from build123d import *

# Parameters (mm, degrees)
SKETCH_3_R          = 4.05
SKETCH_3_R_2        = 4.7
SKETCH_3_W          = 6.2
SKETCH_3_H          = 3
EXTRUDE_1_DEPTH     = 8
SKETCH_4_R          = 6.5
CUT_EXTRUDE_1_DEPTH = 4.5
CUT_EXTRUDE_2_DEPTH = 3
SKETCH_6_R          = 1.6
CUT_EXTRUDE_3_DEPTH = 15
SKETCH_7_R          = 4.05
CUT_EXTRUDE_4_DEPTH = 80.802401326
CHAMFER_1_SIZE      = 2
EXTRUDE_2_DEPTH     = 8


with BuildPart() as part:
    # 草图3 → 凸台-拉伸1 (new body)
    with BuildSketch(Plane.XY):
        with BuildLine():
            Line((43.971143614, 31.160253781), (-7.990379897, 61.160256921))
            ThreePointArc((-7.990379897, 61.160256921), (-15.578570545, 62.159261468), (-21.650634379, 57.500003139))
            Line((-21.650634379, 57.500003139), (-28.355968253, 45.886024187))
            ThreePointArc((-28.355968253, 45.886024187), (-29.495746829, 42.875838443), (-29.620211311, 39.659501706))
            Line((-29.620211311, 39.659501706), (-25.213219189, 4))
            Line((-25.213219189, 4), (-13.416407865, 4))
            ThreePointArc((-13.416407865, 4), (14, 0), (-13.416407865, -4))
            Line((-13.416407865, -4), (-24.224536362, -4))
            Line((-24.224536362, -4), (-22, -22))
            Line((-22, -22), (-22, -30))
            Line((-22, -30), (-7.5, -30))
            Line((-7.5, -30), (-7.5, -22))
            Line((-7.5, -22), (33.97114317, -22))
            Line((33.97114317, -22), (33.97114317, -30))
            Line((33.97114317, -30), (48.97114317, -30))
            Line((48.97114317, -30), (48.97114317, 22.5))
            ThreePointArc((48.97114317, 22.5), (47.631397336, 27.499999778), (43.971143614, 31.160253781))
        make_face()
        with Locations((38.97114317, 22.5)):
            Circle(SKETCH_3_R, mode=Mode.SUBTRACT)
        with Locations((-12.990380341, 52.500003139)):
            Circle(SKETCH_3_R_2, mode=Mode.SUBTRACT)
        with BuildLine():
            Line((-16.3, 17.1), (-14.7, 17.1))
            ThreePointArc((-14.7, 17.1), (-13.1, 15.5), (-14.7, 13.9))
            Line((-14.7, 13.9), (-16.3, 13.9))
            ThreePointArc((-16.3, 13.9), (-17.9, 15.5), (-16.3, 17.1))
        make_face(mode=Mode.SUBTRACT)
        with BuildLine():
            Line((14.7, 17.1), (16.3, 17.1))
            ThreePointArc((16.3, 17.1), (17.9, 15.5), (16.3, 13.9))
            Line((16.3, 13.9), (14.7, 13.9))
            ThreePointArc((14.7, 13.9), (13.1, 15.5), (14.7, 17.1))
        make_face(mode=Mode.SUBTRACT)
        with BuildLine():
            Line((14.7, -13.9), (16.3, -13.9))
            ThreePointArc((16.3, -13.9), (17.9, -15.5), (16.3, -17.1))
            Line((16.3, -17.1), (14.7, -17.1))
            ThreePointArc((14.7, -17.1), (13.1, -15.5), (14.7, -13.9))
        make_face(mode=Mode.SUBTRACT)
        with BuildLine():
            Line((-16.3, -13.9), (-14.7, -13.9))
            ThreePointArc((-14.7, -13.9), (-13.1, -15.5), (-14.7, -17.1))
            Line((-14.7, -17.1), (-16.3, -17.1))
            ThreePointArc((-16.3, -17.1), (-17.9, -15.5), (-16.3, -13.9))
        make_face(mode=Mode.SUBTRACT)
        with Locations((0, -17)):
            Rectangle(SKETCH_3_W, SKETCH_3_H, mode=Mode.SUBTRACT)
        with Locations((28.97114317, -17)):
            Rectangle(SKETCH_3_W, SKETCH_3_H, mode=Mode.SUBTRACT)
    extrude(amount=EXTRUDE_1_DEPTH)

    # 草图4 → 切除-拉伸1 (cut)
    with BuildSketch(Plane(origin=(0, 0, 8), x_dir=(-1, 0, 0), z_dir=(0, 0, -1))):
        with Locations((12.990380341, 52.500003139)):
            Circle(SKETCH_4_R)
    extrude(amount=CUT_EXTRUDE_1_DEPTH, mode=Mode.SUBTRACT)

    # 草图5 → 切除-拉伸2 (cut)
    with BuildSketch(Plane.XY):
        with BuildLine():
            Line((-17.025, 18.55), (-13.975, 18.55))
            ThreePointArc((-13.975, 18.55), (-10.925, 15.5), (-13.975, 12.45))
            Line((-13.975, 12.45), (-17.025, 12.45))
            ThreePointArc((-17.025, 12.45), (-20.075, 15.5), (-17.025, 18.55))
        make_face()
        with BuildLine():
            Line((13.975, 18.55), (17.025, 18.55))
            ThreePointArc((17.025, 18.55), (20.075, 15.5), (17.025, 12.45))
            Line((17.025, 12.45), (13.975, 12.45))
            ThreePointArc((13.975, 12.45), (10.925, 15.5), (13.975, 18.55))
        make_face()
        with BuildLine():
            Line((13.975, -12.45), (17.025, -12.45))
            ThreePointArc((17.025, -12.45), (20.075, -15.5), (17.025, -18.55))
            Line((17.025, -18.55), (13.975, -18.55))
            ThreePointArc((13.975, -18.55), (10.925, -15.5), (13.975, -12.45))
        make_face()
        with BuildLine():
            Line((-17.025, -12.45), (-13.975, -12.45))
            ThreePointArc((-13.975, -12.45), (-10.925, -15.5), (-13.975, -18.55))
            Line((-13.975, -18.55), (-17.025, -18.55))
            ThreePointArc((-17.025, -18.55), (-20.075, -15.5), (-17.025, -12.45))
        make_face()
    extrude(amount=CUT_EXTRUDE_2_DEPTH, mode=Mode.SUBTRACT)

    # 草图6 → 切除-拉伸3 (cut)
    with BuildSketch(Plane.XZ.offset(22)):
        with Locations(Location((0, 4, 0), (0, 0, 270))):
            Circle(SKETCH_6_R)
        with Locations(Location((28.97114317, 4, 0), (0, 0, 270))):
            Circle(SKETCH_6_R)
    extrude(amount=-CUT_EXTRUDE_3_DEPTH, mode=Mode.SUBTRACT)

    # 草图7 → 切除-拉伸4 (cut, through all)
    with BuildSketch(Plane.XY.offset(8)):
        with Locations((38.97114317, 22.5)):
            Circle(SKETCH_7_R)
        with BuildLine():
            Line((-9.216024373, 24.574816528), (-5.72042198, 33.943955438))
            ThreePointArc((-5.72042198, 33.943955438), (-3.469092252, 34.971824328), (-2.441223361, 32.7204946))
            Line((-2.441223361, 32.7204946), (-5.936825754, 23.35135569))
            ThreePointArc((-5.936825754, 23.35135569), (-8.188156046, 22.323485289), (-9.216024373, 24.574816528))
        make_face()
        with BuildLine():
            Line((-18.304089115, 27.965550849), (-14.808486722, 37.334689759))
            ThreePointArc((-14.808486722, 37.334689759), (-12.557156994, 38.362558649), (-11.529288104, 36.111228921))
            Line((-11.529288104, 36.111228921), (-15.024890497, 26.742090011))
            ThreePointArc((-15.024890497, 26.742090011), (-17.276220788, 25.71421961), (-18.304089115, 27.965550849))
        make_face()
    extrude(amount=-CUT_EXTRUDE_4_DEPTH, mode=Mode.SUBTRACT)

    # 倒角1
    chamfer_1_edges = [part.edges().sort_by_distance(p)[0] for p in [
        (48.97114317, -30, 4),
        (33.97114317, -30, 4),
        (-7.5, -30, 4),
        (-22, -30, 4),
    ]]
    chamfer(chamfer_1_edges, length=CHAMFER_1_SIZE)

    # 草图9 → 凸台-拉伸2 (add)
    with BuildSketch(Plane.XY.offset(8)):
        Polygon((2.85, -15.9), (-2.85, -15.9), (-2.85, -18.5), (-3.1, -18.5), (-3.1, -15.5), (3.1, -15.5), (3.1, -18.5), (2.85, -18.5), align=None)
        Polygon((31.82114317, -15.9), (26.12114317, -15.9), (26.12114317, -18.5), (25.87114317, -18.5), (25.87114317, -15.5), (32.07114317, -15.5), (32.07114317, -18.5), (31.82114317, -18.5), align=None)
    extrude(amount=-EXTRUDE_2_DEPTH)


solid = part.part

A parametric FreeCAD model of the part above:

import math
import FreeCAD as App
import Part
import Sketcher
from FreeCAD import Vector
Q = App.Units.Quantity


def edges_at(feature, points):
    """Names of the edges that pass closest to the given points."""
    edges = feature.Shape.Edges
    near = lambda p: min(range(len(edges)), key=lambda i: edges[i].distToShape(Part.Vertex(*p))[0])
    return sorted({f"Edge{near(p) + 1}" for p in points})


def add_polygon(sketch, points):
    """Adds a closed chain of lines whose ends are joined by coincident constraints."""
    first, n = sketch.GeometryCount, len(points)
    for a, b in zip(points, points[1:] + points[:1]):
        sketch.addGeometry(Part.LineSegment(App.Vector(*a, 0), App.Vector(*b, 0)), False)
    for i in range(n):
        sketch.addConstraint(Sketcher.Constraint("Coincident", first + i, 2, first + (i + 1) % n, 1))

doc = App.newDocument("Part")
body = doc.addObject("PartDesign::Body", "Body")

# Sketch on XY plane
sketch1 = body.newObject("Sketcher::SketchObject", "Sketch")
sketch1.AttachmentSupport = (doc.getObject("XY_Plane"), [""])
sketch1.MapMode = "FlatFace"
sketch1.addGeometry(Part.LineSegment(Vector(44, 31.2, 0), Vector(-8, 61.2, 0)), False)  # 0
sketch1.addGeometry(Part.ArcOfCircle(Part.Circle(Vector(-13, 52.5, 0), Vector(0, 0, 1), 10), math.radians(60), math.radians(150)), False)  # 1
sketch1.addGeometry(Part.LineSegment(Vector(-21.7, 57.5, 0), Vector(-28.4, 45.9, 0)), False)  # 2
sketch1.addGeometry(Part.ArcOfCircle(Part.Circle(Vector(-19.7, 40.9, 0), Vector(0, 0, 1), 10), math.radians(150), math.radians(187)), False)  # 3
sketch1.addGeometry(Part.LineSegment(Vector(-29.6, 39.7, 0), Vector(-25.2, 4, 0)), False)  # 4
sketch1.addGeometry(Part.LineSegment(Vector(-25.2, 4, 0), Vector(-13.4, 4, 0)), False)  # 5
sketch1.addGeometry(Part.ArcOfCircle(Part.Circle(Vector(0, 0, 0), Vector(0, 0, 1), 14), math.radians(-163), math.radians(163)), False)  # 6
sketch1.addGeometry(Part.LineSegment(Vector(-13.4, -4, 0), Vector(-24.2, -4, 0)), False)  # 7
sketch1.addGeometry(Part.LineSegment(Vector(-24.2, -4, 0), Vector(-22, -22, 0)), False)  # 8
sketch1.addGeometry(Part.LineSegment(Vector(-22, -22, 0), Vector(-22, -30, 0)), False)  # 9
sketch1.addGeometry(Part.LineSegment(Vector(-22, -30, 0), Vector(-7.5, -30, 0)), False)  # 10
sketch1.addGeometry(Part.LineSegment(Vector(-7.5, -30, 0), Vector(-7.5, -22, 0)), False)  # 11
sketch1.addGeometry(Part.LineSegment(Vector(-7.5, -22, 0), Vector(34, -22, 0)), False)  # 12
sketch1.addGeometry(Part.LineSegment(Vector(34, -22, 0), Vector(34, -30, 0)), False)  # 13
sketch1.addGeometry(Part.LineSegment(Vector(34, -30, 0), Vector(49, -30, 0)), False)  # 14
sketch1.addGeometry(Part.LineSegment(Vector(49, -30, 0), Vector(49, 22.5, 0)), False)  # 15
sketch1.addGeometry(Part.ArcOfCircle(Part.Circle(Vector(39, 22.5, 0), Vector(0, 0, 1), 10), math.radians(0), math.radians(60)), False)  # 16
sketch1.addGeometry(Part.ArcOfCircle(Part.Circle(Vector(-16.3, -15.5, 0), Vector(0, 0, 1), 1.6), math.radians(90), math.radians(270)), False)  # 17
sketch1.addGeometry(Part.LineSegment(Vector(-16.3, -13.9, 0), Vector(-14.7, -13.9, 0)), False)  # 18
sketch1.addGeometry(Part.ArcOfCircle(Part.Circle(Vector(-14.7, -15.5, 0), Vector(0, 0, 1), 1.6), math.radians(-90), math.radians(90)), False)  # 19
sketch1.addGeometry(Part.LineSegment(Vector(-14.7, -17.1, 0), Vector(-16.3, -17.1, 0)), False)  # 20
add_polygon(sketch1, [(3.1, -18.5), (-3.1, -18.5), (-3.1, -15.5), (3.1, -15.5)])  # lines 21-24
sketch1.addGeometry(Part.ArcOfCircle(Part.Circle(Vector(-16.3, 15.5, 0), Vector(0, 0, 1), 1.6), math.radians(90), math.radians(270)), False)  # 25
sketch1.addGeometry(Part.LineSegment(Vector(-16.3, 17.1, 0), Vector(-14.7, 17.1, 0)), False)  # 26
sketch1.addGeometry(Part.ArcOfCircle(Part.Circle(Vector(-14.7, 15.5, 0), Vector(0, 0, 1), 1.6), math.radians(-90), math.radians(90)), False)  # 27
sketch1.addGeometry(Part.LineSegment(Vector(-14.7, 13.9, 0), Vector(-16.3, 13.9, 0)), False)  # 28
sketch1.addGeometry(Part.ArcOfCircle(Part.Circle(Vector(14.7, -15.5, 0), Vector(0, 0, 1), 1.6), math.radians(90), math.radians(270)), False)  # 29
sketch1.addGeometry(Part.LineSegment(Vector(14.7, -13.9, 0), Vector(16.3, -13.9, 0)), False)  # 30
sketch1.addGeometry(Part.ArcOfCircle(Part.Circle(Vector(16.3, -15.5, 0), Vector(0, 0, 1), 1.6), math.radians(-90), math.radians(90)), False)  # 31
sketch1.addGeometry(Part.LineSegment(Vector(16.3, -17.1, 0), Vector(14.7, -17.1, 0)), False)  # 32
add_polygon(sketch1, [(32.1, -18.5), (25.9, -18.5), (25.9, -15.5), (32.1, -15.5)])  # lines 33-36
sketch1.addGeometry(Part.ArcOfCircle(Part.Circle(Vector(14.7, 15.5, 0), Vector(0, 0, 1), 1.6), math.radians(90), math.radians(270)), False)  # 37
sketch1.addGeometry(Part.LineSegment(Vector(14.7, 17.1, 0), Vector(16.3, 17.1, 0)), False)  # 38
sketch1.addGeometry(Part.ArcOfCircle(Part.Circle(Vector(16.3, 15.5, 0), Vector(0, 0, 1), 1.6), math.radians(-90), math.radians(90)), False)  # 39
sketch1.addGeometry(Part.LineSegment(Vector(16.3, 13.9, 0), Vector(14.7, 13.9, 0)), False)  # 40
sketch1.addGeometry(Part.Circle(Vector(-13, 52.5, 0), Vector(0, 0, 1), 4.7), False)  # 41
sketch1.addGeometry(Part.Circle(Vector(39, 22.5, 0), Vector(0, 0, 1), 4), False)  # 42
sketch1.addConstraint([
    Sketcher.Constraint("Tangent", 0, 2, 1, 1),
    Sketcher.Constraint("Tangent", 1, 2, 2, 1),
    Sketcher.Constraint("Tangent", 2, 2, 3, 1),
    Sketcher.Constraint("Tangent", 3, 2, 4, 1),
    Sketcher.Constraint("Coincident", 4, 2, 5, 1),
    Sketcher.Constraint("Coincident", 5, 2, 6, 2),
    Sketcher.Constraint("Coincident", 6, 1, 7, 1),
    Sketcher.Constraint("Coincident", 7, 2, 8, 1),
    Sketcher.Constraint("Coincident", 8, 2, 9, 1),
    Sketcher.Constraint("Coincident", 9, 2, 10, 1),
    Sketcher.Constraint("Coincident", 10, 2, 11, 1),
    Sketcher.Constraint("Coincident", 11, 2, 12, 1),
    Sketcher.Constraint("Coincident", 12, 2, 13, 1),
    Sketcher.Constraint("Coincident", 13, 2, 14, 1),
    Sketcher.Constraint("Coincident", 14, 2, 15, 1),
    Sketcher.Constraint("Tangent", 15, 2, 16, 1),
    Sketcher.Constraint("Tangent", 16, 2, 0, 1),
    Sketcher.Constraint("Tangent", 17, 1, 18, 1),
    Sketcher.Constraint("Tangent", 18, 2, 19, 2),
    Sketcher.Constraint("Tangent", 19, 1, 20, 1),
    Sketcher.Constraint("Tangent", 20, 2, 17, 2),
    Sketcher.Constraint("Tangent", 25, 1, 26, 1),
    Sketcher.Constraint("Tangent", 26, 2, 27, 2),
    Sketcher.Constraint("Tangent", 27, 1, 28, 1),
    Sketcher.Constraint("Tangent", 28, 2, 25, 2),
    Sketcher.Constraint("Tangent", 29, 1, 30, 1),
    Sketcher.Constraint("Tangent", 30, 2, 31, 2),
    Sketcher.Constraint("Tangent", 31, 1, 32, 1),
    Sketcher.Constraint("Tangent", 32, 2, 29, 2),
    Sketcher.Constraint("Tangent", 37, 1, 38, 1),
    Sketcher.Constraint("Tangent", 38, 2, 39, 2),
    Sketcher.Constraint("Tangent", 39, 1, 40, 1),
    Sketcher.Constraint("Tangent", 40, 2, 37, 2),
    Sketcher.Constraint("Horizontal", 5),
    Sketcher.Constraint("Horizontal", 7),
    Sketcher.Constraint("Vertical", 9),
    Sketcher.Constraint("Horizontal", 10),
    Sketcher.Constraint("Vertical", 11),
    Sketcher.Constraint("Horizontal", 12),
    Sketcher.Constraint("Vertical", 13),
    Sketcher.Constraint("Horizontal", 14),
    Sketcher.Constraint("Vertical", 15),
    Sketcher.Constraint("Horizontal", 18),
    Sketcher.Constraint("Horizontal", 20),
    Sketcher.Constraint("Horizontal", 21),
    Sketcher.Constraint("Vertical", 22),
    Sketcher.Constraint("Horizontal", 23),
    Sketcher.Constraint("Vertical", 24),
    Sketcher.Constraint("Horizontal", 26),
    Sketcher.Constraint("Horizontal", 28),
    Sketcher.Constraint("Horizontal", 30),
    Sketcher.Constraint("Horizontal", 32),
    Sketcher.Constraint("Horizontal", 33),
    Sketcher.Constraint("Vertical", 34),
    Sketcher.Constraint("Horizontal", 35),
    Sketcher.Constraint("Vertical", 36),
    Sketcher.Constraint("Horizontal", 38),
    Sketcher.Constraint("Horizontal", 40),
    Sketcher.Constraint("Coincident", 6, 3, -1, 1),
    Sketcher.Constraint("Coincident", 41, 3, 1, 3),
    Sketcher.Constraint("Coincident", 42, 3, 16, 3),
    Sketcher.Constraint("Equal", 1, 3),
    Sketcher.Constraint("Equal", 3, 16),
    Sketcher.Constraint("Equal", 19, 25),
    Sketcher.Constraint("Equal", 27, 29),
    Sketcher.Constraint("Equal", 31, 37),
    Sketcher.Constraint("Symmetric", 27, 3, 29, 3, -1, 1),
    Sketcher.Constraint("Symmetric", 19, 3, 37, 3, -1, 1),
    Sketcher.Constraint("Symmetric", 19, 3, 29, 3, -2),
    Sketcher.Constraint("Perpendicular", 0, 2),
    Sketcher.Constraint("Parallel", 4, 8),
    Sketcher.Constraint("Horizontal", 8, 2, 11, 2),
    Sketcher.Constraint("Horizontal", 10, 2, 13, 2),
    Sketcher.Constraint("Horizontal", 31, 3, 22, 2),
    Sketcher.Constraint("Horizontal", 24, 2, 33, 2),
    Sketcher.Constraint("Horizontal", 23, 2, 34, 2),
    Sketcher.Constraint("Vertical", 17, 3, 25, 3),
    Sketcher.Constraint("Vertical", 31, 3, 39, 3),
    Sketcher.Constraint("Vertical", 5, 2, 6, 1),
    Sketcher.Constraint("Equal", 28, 30),
    Sketcher.Constraint("Equal", 23, 33),
    Sketcher.Constraint("Radius", 1, 10.0),
    Sketcher.Constraint("Radius", 6, 14.0),
    Sketcher.Constraint("Diameter", 41, 9.4),
    Sketcher.Constraint("Diameter", 42, 8.1),
    Sketcher.Constraint("Radius", 17, 1.6),
    Sketcher.Constraint("DistanceX", 14, 1, 14, 2, 15.0),
    Sketcher.Constraint("DistanceY", 9, 2, 9, 1, 8.0),
    Sketcher.Constraint("DistanceY", 22, 1, 22, 2, 3.0),
    Sketcher.Constraint("Angle", 0, Q("149.999997 deg")),
    Sketcher.Constraint("Distance", 0, 60.000001),
    Sketcher.Constraint("DistanceX", 10, 1, 10, 2, 14.5),
    Sketcher.Constraint("DistanceX", 18, 1, 18, 2, 1.6),
    Sketcher.Constraint("DistanceX", 21, 2, 21, 1, 6.2),
    Sketcher.Constraint("DistanceY", 15, 1, 15, 2, 52.5),
    Sketcher.Constraint("DistanceY", -1, 1, 4, 2, 4.0),
    Sketcher.Constraint("DistanceX", 8, 2, -1, 1, 22.0),
    Sketcher.Constraint("DistanceY", 8, 2, -1, 1, 22.0),
    Sketcher.Constraint("DistanceY", 17, 3, 16, 3, 38.0),
    Sketcher.Constraint("DistanceX", 17, 3, 29, 3, 31.0),
    Sketcher.Constraint("DistanceX", 21, 2, -1, 1, 3.1),
    Sketcher.Constraint("DistanceX", 33, 2, 12, 2, 8.1),
    Sketcher.Constraint("DistanceX", 5, 1, 5, 2, 11.796811),
    Sketcher.Constraint("DistanceX", 7, 2, 7, 1, 10.808128),
    Sketcher.Constraint("DistanceY", -1, 1, 3, 2, 39.659502),
])
pad1 = body.newObject("PartDesign::Pad", "Pad")
pad1.Profile = sketch1
pad1.Length = 8

# Sketch on XY plane
sketch2 = body.newObject("Sketcher::SketchObject", "Sketch001")
sketch2.AttachmentSupport = (doc.getObject("XY_Plane"), [""])
sketch2.MapMode = "FlatFace"
sketch2.AttachmentOffset = App.Placement(Vector(0, 0, 8), App.Rotation())
sketch2.addGeometry(Part.Circle(Vector(-13, 53, 0), Vector(0, 0, 1), 6), False)
sketch2.addConstraint([
    Sketcher.Constraint("Diameter", 0, 13.0),
    Sketcher.Constraint("DistanceX", 0, 3, -1, 1, 12.99038),
    Sketcher.Constraint("DistanceY", -1, 1, 0, 3, 52.500003),
])
pocket1 = body.newObject("PartDesign::Pocket", "Pocket")
pocket1.Profile = sketch2
pocket1.Length = 4.5

# Sketch on XY plane
sketch3 = body.newObject("Sketcher::SketchObject", "Sketch002")
sketch3.AttachmentSupport = (doc.getObject("XY_Plane"), [""])
sketch3.MapMode = "FlatFace"
sketch3.addGeometry([
    Part.LineSegment(Vector(-14, 18.6, 0), Vector(-17, 18.6, 0)),  # 0
    Part.ArcOfCircle(Part.Circle(Vector(-17, 15.5, 0), Vector(0, 0, 1), 3), math.radians(90), math.radians(270)),  # 1
    Part.LineSegment(Vector(-17, 12.4, 0), Vector(-14, 12.4, 0)),  # 2
    Part.ArcOfCircle(Part.Circle(Vector(-14, 15.5, 0), Vector(0, 0, 1), 3), math.radians(-90), math.radians(90)),  # 3
    Part.LineSegment(Vector(17, 18.6, 0), Vector(14, 18.6, 0)),  # 4
    Part.ArcOfCircle(Part.Circle(Vector(14, 15.5, 0), Vector(0, 0, 1), 3), math.radians(90), math.radians(270)),  # 5
    Part.LineSegment(Vector(14, 12.4, 0), Vector(17, 12.4, 0)),  # 6
    Part.ArcOfCircle(Part.Circle(Vector(17, 15.5, 0), Vector(0, 0, 1), 3), math.radians(-90), math.radians(90)),  # 7
    Part.LineSegment(Vector(17, -12.4, 0), Vector(14, -12.4, 0)),  # 8
    Part.ArcOfCircle(Part.Circle(Vector(14, -15.5, 0), Vector(0, 0, 1), 3), math.radians(90), math.radians(270)),  # 9
    Part.LineSegment(Vector(14, -18.6, 0), Vector(17, -18.6, 0)),  # 10
    Part.ArcOfCircle(Part.Circle(Vector(17, -15.5, 0), Vector(0, 0, 1), 3), math.radians(-90), math.radians(90)),  # 11
    Part.LineSegment(Vector(-14, -12.4, 0), Vector(-17, -12.4, 0)),  # 12
    Part.ArcOfCircle(Part.Circle(Vector(-17, -15.5, 0), Vector(0, 0, 1), 3), math.radians(90), math.radians(270)),  # 13
    Part.LineSegment(Vector(-17, -18.6, 0), Vector(-14, -18.6, 0)),  # 14
    Part.ArcOfCircle(Part.Circle(Vector(-14, -15.5, 0), Vector(0, 0, 1), 3), math.radians(-90), math.radians(90)),  # 15
], False)
sketch3.addConstraint([
    Sketcher.Constraint("Tangent", 0, 2, 1, 1),
    Sketcher.Constraint("Tangent", 1, 2, 2, 1),
    Sketcher.Constraint("Tangent", 2, 2, 3, 1),
    Sketcher.Constraint("Tangent", 3, 2, 0, 1),
    Sketcher.Constraint("Tangent", 4, 2, 5, 1),
    Sketcher.Constraint("Tangent", 5, 2, 6, 1),
    Sketcher.Constraint("Tangent", 6, 2, 7, 1),
    Sketcher.Constraint("Tangent", 7, 2, 4, 1),
    Sketcher.Constraint("Tangent", 8, 2, 9, 1),
    Sketcher.Constraint("Tangent", 9, 2, 10, 1),
    Sketcher.Constraint("Tangent", 10, 2, 11, 1),
    Sketcher.Constraint("Tangent", 11, 2, 8, 1),
    Sketcher.Constraint("Tangent", 12, 2, 13, 1),
    Sketcher.Constraint("Tangent", 13, 2, 14, 1),
    Sketcher.Constraint("Tangent", 14, 2, 15, 1),
    Sketcher.Constraint("Tangent", 15, 2, 12, 1),
    Sketcher.Constraint("Horizontal", 0),
    Sketcher.Constraint("Horizontal", 2),
    Sketcher.Constraint("Horizontal", 4),
    Sketcher.Constraint("Horizontal", 6),
    Sketcher.Constraint("Horizontal", 8),
    Sketcher.Constraint("Horizontal", 10),
    Sketcher.Constraint("Horizontal", 12),
    Sketcher.Constraint("Horizontal", 14),
    Sketcher.Constraint("Equal", 3, 5),
    Sketcher.Constraint("Equal", 7, 9),
    Sketcher.Constraint("Equal", 11, 13),
    Sketcher.Constraint("Symmetric", 3, 3, 9, 3, -1, 1),
    Sketcher.Constraint("Symmetric", 7, 3, 13, 3, -1, 1),
    Sketcher.Constraint("Symmetric", 3, 3, 5, 3, -2),
    Sketcher.Constraint("Vertical", 7, 3, 11, 3),
    Sketcher.Constraint("Vertical", 1, 3, 13, 3),
    Sketcher.Constraint("Vertical", 3, 3, 15, 3),
    Sketcher.Constraint("Radius", 1, 3.05),
    Sketcher.Constraint("DistanceX", 1, 3, 5, 3, 31.0),
    Sketcher.Constraint("DistanceY", 9, 3, 5, 3, 31.0),
    Sketcher.Constraint("DistanceX", 0, 2, 0, 1, 3.05),
])
pocket2 = body.newObject("PartDesign::Pocket", "Pocket001")
pocket2.Profile = sketch3
pocket2.Length = 3
pocket2.Reversed = True

# Sketch on XZ plane
sketch4 = body.newObject("Sketcher::SketchObject", "Sketch003")
sketch4.AttachmentSupport = (doc.getObject("XZ_Plane"), [""])
sketch4.MapMode = "FlatFace"
sketch4.AttachmentOffset = App.Placement(Vector(0, 0, 22), App.Rotation())
sketch4.addGeometry([
    Part.Circle(Vector(0, 4, 0), Vector(0, 0, 1), 1.6),
    Part.Circle(Vector(29, 4, 0), Vector(0, 0, 1), 1.6),
], False)
sketch4.addConstraint([
    Sketcher.Constraint("Equal", 0, 1),
    Sketcher.Constraint("PointOnObject", 0, 3, -2),
    Sketcher.Constraint("Horizontal", 0, 3, 1, 3),
    Sketcher.Constraint("Diameter", 0, 3.2),
    Sketcher.Constraint("DistanceY", -1, 1, 0, 3, 4.0),
    Sketcher.Constraint("DistanceX", -1, 1, 1, 3, 28.971143),
])
pocket3 = body.newObject("PartDesign::Pocket", "Pocket002")
pocket3.Profile = sketch4
pocket3.Length = 15

# Sketch on XY plane
sketch5 = body.newObject("Sketcher::SketchObject", "Sketch004")
sketch5.AttachmentSupport = (doc.getObject("XY_Plane"), [""])
sketch5.MapMode = "FlatFace"
sketch5.AttachmentOffset = App.Placement(Vector(0, 0, 8), App.Rotation())
sketch5.addGeometry([
    Part.Circle(Vector(39, 22.5, 0), Vector(0, 0, 1), 4),  # 0
    Part.LineSegment(Vector(-5.7, 33.9, 0), Vector(-9.2, 24.6, 0)),  # 1
    Part.ArcOfCircle(Part.Circle(Vector(-7.6, 24, 0), Vector(0, 0, 1), 1.8), math.radians(160), math.radians(340)),  # 2
    Part.LineSegment(Vector(-5.9, 23.4, 0), Vector(-2.4, 32.7, 0)),  # 3
    Part.ArcOfCircle(Part.Circle(Vector(-4.1, 33.3, 0), Vector(0, 0, 1), 1.8), math.radians(-20), math.radians(160)),  # 4
    Part.LineSegment(Vector(-14.8, 37.3, 0), Vector(-18.3, 28, 0)),  # 5
    Part.ArcOfCircle(Part.Circle(Vector(-16.7, 27.4, 0), Vector(0, 0, 1), 1.8), math.radians(160), math.radians(340)),  # 6
    Part.LineSegment(Vector(-15, 26.7, 0), Vector(-11.5, 36.1, 0)),  # 7
    Part.ArcOfCircle(Part.Circle(Vector(-13.2, 36.7, 0), Vector(0, 0, 1), 1.8), math.radians(-20), math.radians(160)),  # 8
], False)
sketch5.addConstraint([
    Sketcher.Constraint("Tangent", 1, 2, 2, 1),
    Sketcher.Constraint("Tangent", 2, 2, 3, 1),
    Sketcher.Constraint("Tangent", 3, 2, 4, 1),
    Sketcher.Constraint("Tangent", 4, 2, 1, 1),
    Sketcher.Constraint("Tangent", 5, 2, 6, 1),
    Sketcher.Constraint("Tangent", 6, 2, 7, 1),
    Sketcher.Constraint("Tangent", 7, 2, 8, 1),
    Sketcher.Constraint("Tangent", 8, 2, 5, 1),
    Sketcher.Constraint("Equal", 2, 4),
    Sketcher.Constraint("Equal", 4, 6),
    Sketcher.Constraint("Equal", 6, 8),
    Sketcher.Constraint("Parallel", 3, 5),
    Sketcher.Constraint("Equal", 3, 5),
    Sketcher.Constraint("Diameter", 0, 8.1),
    Sketcher.Constraint("Radius", 2, 1.75),
    Sketcher.Constraint("Distance", 1, 10.0),
    Sketcher.Constraint("DistanceY", -1, 1, 0, 3, 22.5),
    Sketcher.Constraint("DistanceX", 1, 2, 2, 3, 1.639599),
    Sketcher.Constraint("DistanceX", 6, 3, -1, 1, 16.66449),
    Sketcher.Constraint("DistanceY", -1, 1, 6, 3, 27.353819),
    Sketcher.Constraint("DistanceX", 4, 2, -1, 1, 5.720422),
    Sketcher.Constraint("DistanceX", 2, 3, 0, 3, 46.547569),
    Sketcher.Constraint("DistanceY", -1, 1, 2, 3, 23.963085),
])
pocket4 = body.newObject("PartDesign::Pocket", "Pocket003")
pocket4.Profile = sketch5
pocket4.Type = "ThroughAll"
doc.recompute()

chamfer = body.newObject("PartDesign::Chamfer", "Chamfer")
chamfer.Base = (pocket4, edges_at(pocket4, [
    (48.971, -30, 4),
    (33.971, -30, 4),
    (-7.5, -30, 4),
    (-22, -30, 4),
]))
chamfer.Size = 2

# Sketch on XY plane
sketch6 = body.newObject("Sketcher::SketchObject", "Sketch005")
sketch6.AttachmentSupport = (doc.getObject("XY_Plane"), [""])
sketch6.MapMode = "FlatFace"
sketch6.AttachmentOffset = App.Placement(Vector(0, 0, 8), App.Rotation())
add_polygon(sketch6, [(-2.85, -15.9), (2.85, -15.9), (2.85, -18.5), (3.1, -18.5), (3.1, -15.5), (-3.1, -15.5), (-3.1, -18.5), (-2.85, -18.5)])  # lines 0-7
add_polygon(sketch6, [(26.12, -15.9), (31.82, -15.9), (31.82, -18.5), (32.07, -18.5), (32.07, -15.5), (25.87, -15.5), (25.87, -18.5), (26.12, -18.5)])  # lines 8-15
sketch6.addConstraint([
    Sketcher.Constraint("Horizontal", 0),
    Sketcher.Constraint("Vertical", 1),
    Sketcher.Constraint("Horizontal", 2),
    Sketcher.Constraint("Vertical", 3),
    Sketcher.Constraint("Horizontal", 4),
    Sketcher.Constraint("Vertical", 5),
    Sketcher.Constraint("Horizontal", 6),
    Sketcher.Constraint("Vertical", 7),
    Sketcher.Constraint("Horizontal", 8),
    Sketcher.Constraint("Vertical", 9),
    Sketcher.Constraint("Horizontal", 10),
    Sketcher.Constraint("Vertical", 11),
    Sketcher.Constraint("Horizontal", 12),
    Sketcher.Constraint("Vertical", 13),
    Sketcher.Constraint("Horizontal", 14),
    Sketcher.Constraint("Vertical", 15),
    Sketcher.Constraint("Symmetric", 2, 2, 5, 2, -2),
    Sketcher.Constraint("Horizontal", 7, 2, 8, 2),
    Sketcher.Constraint("Horizontal", 6, 2, 9, 2),
    Sketcher.Constraint("Horizontal", 4, 2, 11, 2),
    Sketcher.Constraint("Horizontal", 10, 2, 13, 2),
    Sketcher.Constraint("Equal", 2, 6),
    Sketcher.Constraint("Equal", 0, 8),
    Sketcher.Constraint("Equal", 6, 10),
    Sketcher.Constraint("Equal", 4, 12),
    Sketcher.Constraint("DistanceY", 3, 1, 3, 2, 3.0),
    Sketcher.Constraint("DistanceX", 0, 1, 0, 2, 5.7),
    Sketcher.Constraint("DistanceX", 4, 2, 4, 1, 6.2),
    Sketcher.Constraint("DistanceY", 1, 2, 1, 1, 2.6),
    Sketcher.Constraint("DistanceY", 0, 2, -1, 1, 15.9),
    Sketcher.Constraint("DistanceX", -1, 1, 8, 2, 31.821143),
])
pad2 = body.newObject("PartDesign::Pad", "Pad001")
pad2.Profile = sketch6
pad2.Length = 8
pad2.Reversed = True

doc.recompute()
